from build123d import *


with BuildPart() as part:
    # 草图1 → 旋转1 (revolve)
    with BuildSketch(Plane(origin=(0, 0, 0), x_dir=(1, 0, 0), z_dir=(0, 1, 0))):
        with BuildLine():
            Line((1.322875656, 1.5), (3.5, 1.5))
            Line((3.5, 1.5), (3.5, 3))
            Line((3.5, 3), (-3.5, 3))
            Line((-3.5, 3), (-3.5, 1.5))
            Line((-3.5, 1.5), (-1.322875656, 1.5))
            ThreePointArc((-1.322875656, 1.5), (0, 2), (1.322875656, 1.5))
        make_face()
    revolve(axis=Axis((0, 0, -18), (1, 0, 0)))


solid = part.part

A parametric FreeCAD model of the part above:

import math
import FreeCAD as App
import Part
import Sketcher
from FreeCAD import Vector
Q = App.Units.Quantity

doc = App.newDocument("Part")
body = doc.addObject("PartDesign::Body", "Body")

# Sketch on XZ plane
sketch1 = body.newObject("Sketcher::SketchObject", "Sketch")
sketch1.AttachmentSupport = (doc.getObject("XZ_Plane"), [""])
sketch1.MapMode = "FlatFace"
sketch1.addGeometry([
    Part.LineSegment(Vector(1.322876, -1.5, 0), Vector(3.5, -1.5, 0)),  # 0
    Part.LineSegment(Vector(3.5, -1.5, 0), Vector(3.5, -3, 0)),  # 1
    Part.LineSegment(Vector(3.5, -3, 0), Vector(-3.5, -3, 0)),  # 2
    Part.LineSegment(Vector(-3.5, -3, 0), Vector(-3.5, -1.5, 0)),  # 3
    Part.LineSegment(Vector(-3.5, -1.5, 0), Vector(-1.322876, -1.5, 0)),  # 4
    Part.ArcOfCircle(Part.Circle(Vector(0, 0, 0), Vector(0, 0, 1), 2), math.radians(-131.409622), math.radians(-48.590378)),  # 5
], False)
sketch1.addGeometry(Part.LineSegment(Vector(-3.5, -18, 0), Vector(3.5, -18, 0)), True)  # axis
sketch1.addConstraint([
    Sketcher.Constraint("Coincident", 0, 2, 1, 1),
    Sketcher.Constraint("Coincident", 1, 2, 2, 1),
    Sketcher.Constraint("Coincident", 2, 2, 3, 1),
    Sketcher.Constraint("Coincident", 3, 2, 4, 1),
    Sketcher.Constraint("Coincident", 4, 2, 5, 1),
    Sketcher.Constraint("Coincident", 5, 2, 0, 1),
    Sketcher.Constraint("Horizontal", 0),
    Sketcher.Constraint("Vertical", 1),
    Sketcher.Constraint("Horizontal", 2),
    Sketcher.Constraint("Vertical", 3),
    Sketcher.Constraint("Horizontal", 4),
    Sketcher.Constraint("Horizontal", 6),
    Sketcher.Constraint("Coincident", 5, 3, -1, 1),
    Sketcher.Constraint("Symmetric", 0, 2, 3, 2, -2),
    Sketcher.Constraint("Vertical", 3, 2, 6, 1),
    Sketcher.Constraint("Vertical", 1, 2, 6, 2),
    Sketcher.Constraint("Radius", 5, Q("2 mm")),
    Sketcher.Constraint("DistanceX", 2, 2, 2, 1, Q("7 mm")),
    Sketcher.Constraint("DistanceY", 1, 2, 1, 1, Q("1.5 mm")),
    Sketcher.Constraint("DistanceY", 1, 2, -1, 1, Q("3 mm")),
    Sketcher.Constraint("DistanceY", 6, 1, -1, 1, Q("18 mm")),
])
revolution = body.newObject("PartDesign::Revolution", "Revolution")
revolution.Profile = sketch1
revolution.ReferenceAxis = (sketch1, ["Axis0"])
revolution.Angle = 360

doc.recompute()
